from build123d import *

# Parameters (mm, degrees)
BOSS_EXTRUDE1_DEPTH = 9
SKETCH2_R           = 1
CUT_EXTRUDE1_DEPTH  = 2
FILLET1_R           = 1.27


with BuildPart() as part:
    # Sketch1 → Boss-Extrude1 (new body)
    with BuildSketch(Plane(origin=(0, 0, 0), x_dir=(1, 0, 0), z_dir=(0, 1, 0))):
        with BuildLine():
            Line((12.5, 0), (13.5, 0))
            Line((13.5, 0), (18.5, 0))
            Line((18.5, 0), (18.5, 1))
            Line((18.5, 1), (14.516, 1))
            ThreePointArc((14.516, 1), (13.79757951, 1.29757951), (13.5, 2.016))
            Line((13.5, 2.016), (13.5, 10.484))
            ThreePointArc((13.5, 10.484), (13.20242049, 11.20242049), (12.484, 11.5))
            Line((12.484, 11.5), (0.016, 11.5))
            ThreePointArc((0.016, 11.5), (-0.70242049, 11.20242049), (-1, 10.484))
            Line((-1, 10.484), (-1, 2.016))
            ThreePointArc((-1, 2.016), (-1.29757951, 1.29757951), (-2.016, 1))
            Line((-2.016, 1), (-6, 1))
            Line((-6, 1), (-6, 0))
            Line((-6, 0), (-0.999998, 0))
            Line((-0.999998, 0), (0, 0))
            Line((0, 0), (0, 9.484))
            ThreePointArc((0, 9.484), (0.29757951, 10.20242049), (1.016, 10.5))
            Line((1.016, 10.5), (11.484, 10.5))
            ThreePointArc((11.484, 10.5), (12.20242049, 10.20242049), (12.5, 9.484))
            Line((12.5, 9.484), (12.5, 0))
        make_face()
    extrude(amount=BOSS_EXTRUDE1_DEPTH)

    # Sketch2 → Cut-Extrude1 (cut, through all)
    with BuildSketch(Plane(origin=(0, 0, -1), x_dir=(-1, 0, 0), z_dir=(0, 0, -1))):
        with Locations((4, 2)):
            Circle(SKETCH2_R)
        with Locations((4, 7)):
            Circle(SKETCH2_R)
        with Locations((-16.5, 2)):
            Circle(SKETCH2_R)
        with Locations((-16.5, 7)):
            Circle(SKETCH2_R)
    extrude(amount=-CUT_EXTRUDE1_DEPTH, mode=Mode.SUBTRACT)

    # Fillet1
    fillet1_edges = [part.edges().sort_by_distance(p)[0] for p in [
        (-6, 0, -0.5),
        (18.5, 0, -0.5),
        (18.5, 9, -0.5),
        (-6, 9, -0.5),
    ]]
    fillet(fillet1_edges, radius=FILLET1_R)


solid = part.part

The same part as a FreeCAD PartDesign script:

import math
import FreeCAD as App
import Part
import Sketcher
from FreeCAD import Vector


def edges_at(feature, points):
    """Names of the edges that pass closest to the given points."""
    edges = feature.Shape.Edges
    near = lambda p: min(range(len(edges)), key=lambda i: edges[i].distToShape(Part.Vertex(*p))[0])
    return sorted({f"Edge{near(p) + 1}" for p in points})

doc = App.newDocument("Part")
body = doc.addObject("PartDesign::Body", "Body")

# Sketch on XZ plane
sketch1 = body.newObject("Sketcher::SketchObject", "Sketch")
sketch1.AttachmentSupport = (doc.getObject("XZ_Plane"), [""])
sketch1.MapMode = "FlatFace"
sketch1.addGeometry(Part.LineSegment(Vector(12.5, 0, 0), Vector(18.5, 0, 0)), False)
sketch1.addGeometry(Part.LineSegment(Vector(18.5, 0, 0), Vector(18.5, -1, 0)), False)
sketch1.addGeometry(Part.LineSegment(Vector(18.5, -1, 0), Vector(14.516, -1, 0)), False)
sketch1.addGeometry(Part.ArcOfCircle(Part.Circle(Vector(14.516, -2.016, 0), Vector(0, 0, 1), 1.016), math.radians(90), math.radians(180)), False)
sketch1.addGeometry(Part.LineSegment(Vector(13.5, -2.016, 0), Vector(13.5, -10.484, 0)), False)
sketch1.addGeometry(Part.ArcOfCircle(Part.Circle(Vector(12.484, -10.484, 0), Vector(0, 0, 1), 1.016), math.radians(-90), math.radians(0)), False)
sketch1.addGeometry(Part.LineSegment(Vector(12.484, -11.5, 0), Vector(0.016, -11.5, 0)), False)
sketch1.addGeometry(Part.ArcOfCircle(Part.Circle(Vector(0.016, -10.484, 0), Vector(0, 0, 1), 1.016), math.radians(180), math.radians(270)), False)
sketch1.addGeometry(Part.LineSegment(Vector(-1, -10.484, 0), Vector(-1, -2.016, 0)), False)
sketch1.addGeometry(Part.ArcOfCircle(Part.Circle(Vector(-2.016, -2.016, 0), Vector(0, 0, 1), 1.016), math.radians(0), math.radians(90)), False)
sketch1.addGeometry(Part.LineSegment(Vector(-2.016, -1, 0), Vector(-6, -1, 0)), False)
sketch1.addGeometry(Part.LineSegment(Vector(-6, -1, 0), Vector(-6, 0, 0)), False)
sketch1.addGeometry(Part.LineSegment(Vector(-6, 0, 0), Vector(0, 0, 0)), False)
sketch1.addGeometry(Part.LineSegment(Vector(0, 0, 0), Vector(0, -9.484, 0)), False)
sketch1.addGeometry(Part.ArcOfCircle(Part.Circle(Vector(1.016, -9.484, 0), Vector(0, 0, 1), 1.016), math.radians(180), math.radians(270)), False)
sketch1.addGeometry(Part.LineSegment(Vector(1.016, -10.5, 0), Vector(11.484, -10.5, 0)), False)
sketch1.addGeometry(Part.ArcOfCircle(Part.Circle(Vector(11.484, -9.484, 0), Vector(0, 0, 1), 1.016), math.radians(-90), math.radians(0)), False)
sketch1.addGeometry(Part.LineSegment(Vector(12.5, -9.484, 0), Vector(12.5, 0, 0)), False)
sketch1.addConstraint(Sketcher.Constraint("Coincident", 0, 2, 1, 1))
sketch1.addConstraint(Sketcher.Constraint("Coincident", 1, 2, 2, 1))
sketch1.addConstraint(Sketcher.Constraint("Tangent", 2, 2, 3, 1))
sketch1.addConstraint(Sketcher.Constraint("Tangent", 3, 2, 4, 1))
sketch1.addConstraint(Sketcher.Constraint("Tangent", 4, 2, 5, 2))
sketch1.addConstraint(Sketcher.Constraint("Tangent", 5, 1, 6, 1))
sketch1.addConstraint(Sketcher.Constraint("Tangent", 6, 2, 7, 2))
sketch1.addConstraint(Sketcher.Constraint("Tangent", 7, 1, 8, 1))
sketch1.addConstraint(Sketcher.Constraint("Tangent", 8, 2, 9, 1))
sketch1.addConstraint(Sketcher.Constraint("Tangent", 9, 2, 10, 1))
sketch1.addConstraint(Sketcher.Constraint("Coincident", 10, 2, 11, 1))
sketch1.addConstraint(Sketcher.Constraint("Coincident", 11, 2, 12, 1))
sketch1.addConstraint(Sketcher.Constraint("Coincident", 12, 2, 13, 1))
sketch1.addConstraint(Sketcher.Constraint("Tangent", 13, 2, 14, 1))
sketch1.addConstraint(Sketcher.Constraint("Tangent", 14, 2, 15, 1))
sketch1.addConstraint(Sketcher.Constraint("Tangent", 15, 2, 16, 1))
sketch1.addConstraint(Sketcher.Constraint("Tangent", 16, 2, 17, 1))
sketch1.addConstraint(Sketcher.Constraint("Coincident", 17, 2, 0, 1))
sketch1.addConstraint(Sketcher.Constraint("Horizontal", 0))
sketch1.addConstraint(Sketcher.Constraint("Vertical", 1))
sketch1.addConstraint(Sketcher.Constraint("Horizontal", 2))
sketch1.addConstraint(Sketcher.Constraint("Vertical", 4))
sketch1.addConstraint(Sketcher.Constraint("Horizontal", 6))
sketch1.addConstraint(Sketcher.Constraint("Vertical", 8))
sketch1.addConstraint(Sketcher.Constraint("Horizontal", 10))
sketch1.addConstraint(Sketcher.Constraint("Vertical", 11))
sketch1.addConstraint(Sketcher.Constraint("Horizontal", 12))
sketch1.addConstraint(Sketcher.Constraint("Vertical", 13))
sketch1.addConstraint(Sketcher.Constraint("Horizontal", 15))
sketch1.addConstraint(Sketcher.Constraint("Vertical", 17))
sketch1.addConstraint(Sketcher.Constraint("Coincident", 12, 2, -1, 1))
sketch1.addConstraint(Sketcher.Constraint("Equal", 3, 5))
sketch1.addConstraint(Sketcher.Constraint("Equal", 5, 7))
sketch1.addConstraint(Sketcher.Constraint("Equal", 7, 9))
sketch1.addConstraint(Sketcher.Constraint("Equal", 9, 14))
sketch1.addConstraint(Sketcher.Constraint("Equal", 14, 16))
sketch1.addConstraint(Sketcher.Constraint("PointOnObject", 0, 2, -1))
sketch1.addConstraint(Sketcher.Constraint("Horizontal", 3, 3, 9, 3))
sketch1.addConstraint(Sketcher.Constraint("Equal", 2, 10))
sketch1.addConstraint(Sketcher.Constraint("Equal", 0, 12))
sketch1.addConstraint(Sketcher.Constraint("DistanceX", 0, 1, 0, 2, 6.0))
sketch1.addConstraint(Sketcher.Constraint("DistanceY", 1, 2, 1, 1, 1.0))
sketch1.addConstraint(Sketcher.Constraint("DistanceX", 7, 1, -1, 1, 1.0))
sketch1.addConstraint(Sketcher.Constraint("Radius", 3, 1.016))
sketch1.addConstraint(Sketcher.Constraint("DistanceY", 7, 3, 14, 3, 1.0))
sketch1.addConstraint(Sketcher.Constraint("DistanceX", -1, 1, 0, 2, 18.5))
sketch1.addConstraint(Sketcher.Constraint("DistanceY", 5, 1, -1, 1, 11.5))
pad1 = body.newObject("PartDesign::Pad", "Pad")
pad1.Profile = sketch1
pad1.Length = 9
pad1.Reversed = True

# Sketch on XY plane
sketch2 = body.newObject("Sketcher::SketchObject", "Sketch001")
sketch2.AttachmentSupport = (doc.getObject("XY_Plane"), [""])
sketch2.MapMode = "FlatFace"
sketch2.AttachmentOffset = App.Placement(Vector(0, 0, -1), App.Rotation())
sketch2.addGeometry(Part.Circle(Vector(-4, 2, 0), Vector(0, 0, 1), 1), False)
sketch2.addGeometry(Part.Circle(Vector(-4, 7, 0), Vector(0, 0, 1), 1), False)
sketch2.addGeometry(Part.Circle(Vector(16.5, 2, 0), Vector(0, 0, 1), 1), False)
sketch2.addGeometry(Part.Circle(Vector(16.5, 7, 0), Vector(0, 0, 1), 1), False)
sketch2.addConstraint(Sketcher.Constraint("Equal", 0, 1))
sketch2.addConstraint(Sketcher.Constraint("Equal", 1, 2))
sketch2.addConstraint(Sketcher.Constraint("Equal", 2, 3))
sketch2.addConstraint(Sketcher.Constraint("Horizontal", 0, 3, 2, 3))
sketch2.addConstraint(Sketcher.Constraint("Horizontal", 1, 3, 3, 3))
sketch2.addConstraint(Sketcher.Constraint("Vertical", 0, 3, 1, 3))
sketch2.addConstraint(Sketcher.Constraint("Vertical", 2, 3, 3, 3))
sketch2.addConstraint(Sketcher.Constraint("Diameter", 0, 2.0))
sketch2.addConstraint(Sketcher.Constraint("DistanceX", 0, 3, -1, 1, 4.0))
sketch2.addConstraint(Sketcher.Constraint("DistanceY", -1, 1, 0, 3, 2.0))
sketch2.addConstraint(Sketcher.Constraint("DistanceY", -1, 1, 1, 3, 7.0))
sketch2.addConstraint(Sketcher.Constraint("DistanceX", -1, 1, 2, 3, 16.5))
pocket1 = body.newObject("PartDesign::Pocket", "Pocket")
pocket1.Profile = sketch2
pocket1.Type = "ThroughAll"
pocket1.Reversed = True
doc.recompute()

fillet = body.newObject("PartDesign::Fillet", "Fillet")
fillet.Base = (pocket1, edges_at(pocket1, [
    (-6, 0, -0.5),
    (18.5, 0, -0.5),
    (18.5, 9, -0.5),
    (-6, 9, -0.5),
]))
fillet.Radius = 1.27

doc.recompute()
